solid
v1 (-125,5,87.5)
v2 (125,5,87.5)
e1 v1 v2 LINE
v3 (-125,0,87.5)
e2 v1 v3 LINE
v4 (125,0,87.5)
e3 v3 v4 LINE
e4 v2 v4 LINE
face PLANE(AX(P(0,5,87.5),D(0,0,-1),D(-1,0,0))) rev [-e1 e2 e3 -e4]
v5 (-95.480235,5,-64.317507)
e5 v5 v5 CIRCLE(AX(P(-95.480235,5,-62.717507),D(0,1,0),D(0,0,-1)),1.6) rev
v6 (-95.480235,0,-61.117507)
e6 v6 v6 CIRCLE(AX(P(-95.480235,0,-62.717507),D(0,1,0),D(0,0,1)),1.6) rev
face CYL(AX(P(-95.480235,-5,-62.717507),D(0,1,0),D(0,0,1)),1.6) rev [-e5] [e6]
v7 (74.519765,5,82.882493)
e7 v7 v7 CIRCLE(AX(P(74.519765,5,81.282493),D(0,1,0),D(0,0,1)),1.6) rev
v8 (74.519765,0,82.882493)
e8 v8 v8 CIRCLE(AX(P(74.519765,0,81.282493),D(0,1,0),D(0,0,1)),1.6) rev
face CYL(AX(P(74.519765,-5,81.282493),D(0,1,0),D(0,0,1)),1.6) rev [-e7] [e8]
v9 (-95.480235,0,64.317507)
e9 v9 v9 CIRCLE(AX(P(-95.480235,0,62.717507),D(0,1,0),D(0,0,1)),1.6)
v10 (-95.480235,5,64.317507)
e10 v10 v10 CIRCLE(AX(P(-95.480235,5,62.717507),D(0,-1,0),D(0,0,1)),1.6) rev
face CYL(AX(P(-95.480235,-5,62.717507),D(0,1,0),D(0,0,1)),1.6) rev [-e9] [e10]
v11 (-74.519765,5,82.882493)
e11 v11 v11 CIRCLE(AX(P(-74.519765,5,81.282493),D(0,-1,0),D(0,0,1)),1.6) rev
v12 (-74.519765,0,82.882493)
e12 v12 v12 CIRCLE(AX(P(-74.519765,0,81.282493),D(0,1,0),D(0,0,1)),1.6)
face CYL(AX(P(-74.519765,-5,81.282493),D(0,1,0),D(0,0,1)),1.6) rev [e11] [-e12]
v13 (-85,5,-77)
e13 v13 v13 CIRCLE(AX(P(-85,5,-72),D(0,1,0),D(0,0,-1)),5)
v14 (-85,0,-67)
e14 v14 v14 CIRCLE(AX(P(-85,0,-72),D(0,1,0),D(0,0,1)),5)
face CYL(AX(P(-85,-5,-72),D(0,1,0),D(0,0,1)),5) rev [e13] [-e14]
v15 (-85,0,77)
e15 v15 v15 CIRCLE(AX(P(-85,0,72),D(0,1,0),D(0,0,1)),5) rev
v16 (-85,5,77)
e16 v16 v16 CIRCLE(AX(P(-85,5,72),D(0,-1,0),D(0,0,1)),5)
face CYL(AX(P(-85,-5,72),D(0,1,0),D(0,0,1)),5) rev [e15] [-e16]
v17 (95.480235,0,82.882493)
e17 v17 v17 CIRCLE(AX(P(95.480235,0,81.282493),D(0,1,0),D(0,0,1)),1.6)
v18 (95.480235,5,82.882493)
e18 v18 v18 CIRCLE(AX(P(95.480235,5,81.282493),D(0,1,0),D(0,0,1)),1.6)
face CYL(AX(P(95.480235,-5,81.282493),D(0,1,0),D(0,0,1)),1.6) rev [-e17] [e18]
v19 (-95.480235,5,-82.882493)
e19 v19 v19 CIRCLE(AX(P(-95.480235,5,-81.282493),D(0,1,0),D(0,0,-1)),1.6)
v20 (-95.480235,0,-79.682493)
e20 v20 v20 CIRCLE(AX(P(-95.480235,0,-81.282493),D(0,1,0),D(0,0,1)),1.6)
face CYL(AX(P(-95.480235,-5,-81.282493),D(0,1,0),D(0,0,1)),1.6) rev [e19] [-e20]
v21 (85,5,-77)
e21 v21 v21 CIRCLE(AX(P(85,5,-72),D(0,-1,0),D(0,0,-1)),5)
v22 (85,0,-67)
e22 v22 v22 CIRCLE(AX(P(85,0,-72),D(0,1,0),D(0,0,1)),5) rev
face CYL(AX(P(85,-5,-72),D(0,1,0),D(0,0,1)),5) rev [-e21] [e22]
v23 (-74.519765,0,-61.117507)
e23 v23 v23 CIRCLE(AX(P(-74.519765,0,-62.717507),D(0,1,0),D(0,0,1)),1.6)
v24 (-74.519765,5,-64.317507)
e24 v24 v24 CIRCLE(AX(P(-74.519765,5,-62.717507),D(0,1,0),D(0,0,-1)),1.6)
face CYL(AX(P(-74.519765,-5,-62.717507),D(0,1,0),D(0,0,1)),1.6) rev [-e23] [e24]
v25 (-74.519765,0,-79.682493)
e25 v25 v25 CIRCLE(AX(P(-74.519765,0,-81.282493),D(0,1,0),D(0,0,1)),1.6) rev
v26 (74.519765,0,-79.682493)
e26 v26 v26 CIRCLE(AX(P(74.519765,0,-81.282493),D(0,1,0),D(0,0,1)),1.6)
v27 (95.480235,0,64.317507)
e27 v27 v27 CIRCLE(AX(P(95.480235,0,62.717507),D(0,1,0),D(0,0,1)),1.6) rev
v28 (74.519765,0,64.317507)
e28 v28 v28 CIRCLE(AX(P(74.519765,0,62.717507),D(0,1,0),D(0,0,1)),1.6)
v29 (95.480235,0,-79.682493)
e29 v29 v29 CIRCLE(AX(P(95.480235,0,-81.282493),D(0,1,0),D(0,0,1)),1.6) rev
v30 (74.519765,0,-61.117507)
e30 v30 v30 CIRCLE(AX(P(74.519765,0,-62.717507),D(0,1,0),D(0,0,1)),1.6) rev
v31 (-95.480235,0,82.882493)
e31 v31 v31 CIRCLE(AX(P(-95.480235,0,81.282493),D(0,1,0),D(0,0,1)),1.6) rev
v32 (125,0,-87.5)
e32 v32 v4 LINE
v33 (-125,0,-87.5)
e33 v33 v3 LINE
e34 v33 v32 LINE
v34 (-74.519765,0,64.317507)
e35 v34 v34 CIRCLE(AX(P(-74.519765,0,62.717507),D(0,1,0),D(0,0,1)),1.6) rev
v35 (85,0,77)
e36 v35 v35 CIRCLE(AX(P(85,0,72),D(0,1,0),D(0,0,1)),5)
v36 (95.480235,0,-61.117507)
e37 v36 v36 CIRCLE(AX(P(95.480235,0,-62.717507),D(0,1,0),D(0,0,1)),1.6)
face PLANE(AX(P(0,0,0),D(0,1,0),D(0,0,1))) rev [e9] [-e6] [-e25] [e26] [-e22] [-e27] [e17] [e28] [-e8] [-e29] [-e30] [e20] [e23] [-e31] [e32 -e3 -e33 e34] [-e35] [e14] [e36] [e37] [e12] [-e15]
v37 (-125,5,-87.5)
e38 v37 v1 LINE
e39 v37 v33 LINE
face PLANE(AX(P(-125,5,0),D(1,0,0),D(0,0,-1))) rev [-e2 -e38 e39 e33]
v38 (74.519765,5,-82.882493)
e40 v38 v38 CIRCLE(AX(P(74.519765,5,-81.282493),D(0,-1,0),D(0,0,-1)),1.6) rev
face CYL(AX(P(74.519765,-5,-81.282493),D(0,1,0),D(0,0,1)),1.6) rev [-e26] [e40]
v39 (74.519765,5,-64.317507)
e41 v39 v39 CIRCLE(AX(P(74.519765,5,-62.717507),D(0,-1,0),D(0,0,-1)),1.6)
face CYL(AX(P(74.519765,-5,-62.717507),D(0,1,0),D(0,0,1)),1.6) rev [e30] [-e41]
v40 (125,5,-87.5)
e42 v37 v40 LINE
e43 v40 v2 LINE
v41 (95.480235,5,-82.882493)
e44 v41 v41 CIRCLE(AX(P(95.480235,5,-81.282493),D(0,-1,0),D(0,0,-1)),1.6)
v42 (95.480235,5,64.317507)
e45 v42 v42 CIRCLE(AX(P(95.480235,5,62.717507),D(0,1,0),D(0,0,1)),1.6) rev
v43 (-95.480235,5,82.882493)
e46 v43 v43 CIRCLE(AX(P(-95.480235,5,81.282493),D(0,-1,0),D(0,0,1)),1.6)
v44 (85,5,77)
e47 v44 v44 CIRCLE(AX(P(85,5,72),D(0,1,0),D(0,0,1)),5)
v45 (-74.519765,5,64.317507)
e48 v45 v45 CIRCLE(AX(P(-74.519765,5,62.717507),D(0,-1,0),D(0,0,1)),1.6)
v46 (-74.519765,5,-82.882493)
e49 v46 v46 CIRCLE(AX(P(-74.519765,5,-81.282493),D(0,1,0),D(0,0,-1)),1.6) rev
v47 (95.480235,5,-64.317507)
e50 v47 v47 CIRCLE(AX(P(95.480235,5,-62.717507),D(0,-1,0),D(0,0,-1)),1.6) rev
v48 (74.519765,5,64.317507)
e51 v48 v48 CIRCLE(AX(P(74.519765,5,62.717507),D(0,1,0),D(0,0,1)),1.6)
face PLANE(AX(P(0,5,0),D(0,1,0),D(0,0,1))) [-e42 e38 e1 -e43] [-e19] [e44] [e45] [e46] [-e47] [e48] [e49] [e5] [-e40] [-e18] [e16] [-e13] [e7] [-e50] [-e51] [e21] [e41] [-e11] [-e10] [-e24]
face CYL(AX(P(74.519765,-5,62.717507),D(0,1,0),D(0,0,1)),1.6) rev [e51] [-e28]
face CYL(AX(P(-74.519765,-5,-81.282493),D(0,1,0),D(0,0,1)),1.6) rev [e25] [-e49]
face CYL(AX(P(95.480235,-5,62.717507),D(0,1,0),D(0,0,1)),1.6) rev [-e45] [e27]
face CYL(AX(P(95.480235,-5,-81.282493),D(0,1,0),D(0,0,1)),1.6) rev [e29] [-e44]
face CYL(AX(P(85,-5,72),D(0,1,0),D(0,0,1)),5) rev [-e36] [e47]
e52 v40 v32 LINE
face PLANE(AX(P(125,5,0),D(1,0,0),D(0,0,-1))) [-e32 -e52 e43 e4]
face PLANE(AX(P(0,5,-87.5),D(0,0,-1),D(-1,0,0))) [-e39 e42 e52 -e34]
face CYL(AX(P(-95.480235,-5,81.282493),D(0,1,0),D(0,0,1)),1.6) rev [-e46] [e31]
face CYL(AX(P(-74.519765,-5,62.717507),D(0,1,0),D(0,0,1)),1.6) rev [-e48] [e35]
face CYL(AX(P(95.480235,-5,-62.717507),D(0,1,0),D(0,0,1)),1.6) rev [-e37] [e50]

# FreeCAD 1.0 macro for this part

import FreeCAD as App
import Part
import Sketcher
Q = App.Units.Quantity

doc = App.newDocument("Part")
body = doc.addObject("PartDesign::Body", "Body")

# Sketch on XZ plane
sketch1 = body.newObject("Sketcher::SketchObject", "Sketch")
sketch1.AttachmentSupport = (doc.getObject("XZ_Plane"), [""])
sketch1.MapMode = "FlatFace"
sketch1.addGeometry([
    Part.LineSegment(App.Vector(-125, -87.5, 0), App.Vector(-125, 87.5, 0)),
    Part.LineSegment(App.Vector(-125, 87.5, 0), App.Vector(125, 87.5, 0)),
    Part.LineSegment(App.Vector(125, 87.5, 0), App.Vector(125, -87.5, 0)),
    Part.LineSegment(App.Vector(125, -87.5, 0), App.Vector(-125, -87.5, 0)),
], False)
sketch1.addConstraint([
    Sketcher.Constraint("Coincident", 0, 2, 1, 1),
    Sketcher.Constraint("Coincident", 1, 2, 2, 1),
    Sketcher.Constraint("Coincident", 2, 2, 3, 1),
    Sketcher.Constraint("Coincident", 3, 2, 0, 1),
    Sketcher.Constraint("Vertical", 0),
    Sketcher.Constraint("Horizontal", 1),
    Sketcher.Constraint("Vertical", 2),
    Sketcher.Constraint("Horizontal", 3),
    Sketcher.Constraint("Symmetric", 0, 2, 2, 2, -1, 1),
    Sketcher.Constraint("DistanceX", 1, 1, 1, 2, Q("250 mm")),
    Sketcher.Constraint("DistanceY", 0, 1, 0, 2, Q("175 mm")),
])
pad1 = body.newObject("PartDesign::Pad", "Pad")
pad1.Profile = sketch1
pad1.Length = 5
pad1.Reversed = True

# Sketch on XZ plane
sketch2 = body.newObject("Sketcher::SketchObject", "Sketch001")
sketch2.AttachmentSupport = (doc.getObject("XZ_Plane"), [""])
sketch2.MapMode = "FlatFace"
sketch2.AttachmentOffset = App.Placement(App.Vector(0, 0, -5), App.Rotation())
sketch2.addGeometry([
    Part.Circle(App.Vector(85, 72, 0), App.Vector(0, 0, 1), 5),  # 0
    Part.Circle(App.Vector(74.519765, 62.717507, 0), App.Vector(0, 0, 1), 1.6),  # 1
    Part.Circle(App.Vector(74.519765, 81.282493, 0), App.Vector(0, 0, 1), 1.6),  # 2
    Part.Circle(App.Vector(95.480235, 81.282493, 0), App.Vector(0, 0, 1), 1.6),  # 3
    Part.Circle(App.Vector(95.480235, 62.717507, 0), App.Vector(0, 0, 1), 1.6),  # 4
], False)
sketch2.addConstraint([
    Sketcher.Constraint("Equal", 1, 2),
    Sketcher.Constraint("Equal", 2, 3),
    Sketcher.Constraint("Equal", 3, 4),
    Sketcher.Constraint("Horizontal", 2, 3, 3, 3),
    Sketcher.Constraint("Horizontal", 1, 3, 4, 3),
    Sketcher.Constraint("Vertical", 1, 3, 2, 3),
    Sketcher.Constraint("Vertical", 3, 3, 4, 3),
    Sketcher.Constraint("Diameter", 0, Q("10 mm")),
    Sketcher.Constraint("Diameter", 1, Q("3.2 mm")),
    Sketcher.Constraint("DistanceX", -1, 1, 0, 3, Q("85 mm")),
    Sketcher.Constraint("DistanceY", -1, 1, 0, 3, Q("72 mm")),
    Sketcher.Constraint("DistanceX", 2, 3, 3, 3, Q("20.960469 mm")),
    Sketcher.Constraint("DistanceX", -1, 1, 1, 3, Q("74.519765 mm")),
    Sketcher.Constraint("DistanceY", -1, 1, 1, 3, Q("62.717507 mm")),
    Sketcher.Constraint("DistanceY", -1, 1, 2, 3, Q("81.282493 mm")),
])
pocket1 = body.newObject("PartDesign::Pocket", "Pocket")
pocket1.Profile = sketch2
pocket1.Length = 10
pocket1.Reversed = True
doc.recompute()

mirrored = body.newObject("PartDesign::Mirrored", "Mirrored")
mirrored.Originals = [pocket1]
mirrored.MirrorPlane = (doc.getObject("XY_Plane"), [""])
body.Tip = mirrored
doc.recompute()

mirrored2 = body.newObject("PartDesign::Mirrored", "Mirrored001")
mirrored2.Originals = [pocket1]
mirrored2.MirrorPlane = (doc.getObject("YZ_Plane"), [""])
body.Tip = mirrored2

# Sketch on XZ plane
sketch3 = body.newObject("Sketcher::SketchObject", "Sketch002")
sketch3.AttachmentSupport = (doc.getObject("XZ_Plane"), [""])
sketch3.MapMode = "FlatFace"
sketch3.AttachmentOffset = App.Placement(App.Vector(0, 0, -5), App.Rotation())
sketch3.addGeometry([
    Part.Circle(App.Vector(-85, -72, 0), App.Vector(0, 0, 1), 5),  # 0
    Part.Circle(App.Vector(-74.519765, -62.717507, 0), App.Vector(0, 0, 1), 1.6),  # 1
    Part.Circle(App.Vector(-74.519765, -81.282493, 0), App.Vector(0, 0, 1), 1.6),  # 2
    Part.Circle(App.Vector(-95.480235, -81.282493, 0), App.Vector(0, 0, 1), 1.6),  # 3
    Part.Circle(App.Vector(-95.480235, -62.717507, 0), App.Vector(0, 0, 1), 1.6),  # 4
], False)
sketch3.addConstraint([
    Sketcher.Constraint("Equal", 1, 2),
    Sketcher.Constraint("Equal", 2, 3),
    Sketcher.Constraint("Equal", 3, 4),
    Sketcher.Constraint("Horizontal", 2, 3, 3, 3),
    Sketcher.Constraint("Horizontal", 1, 3, 4, 3),
    Sketcher.Constraint("Vertical", 1, 3, 2, 3),
    Sketcher.Constraint("Vertical", 3, 3, 4, 3),
    Sketcher.Constraint("Diameter", 0, Q("10 mm")),
    Sketcher.Constraint("Diameter", 1, Q("3.2 mm")),
    Sketcher.Constraint("DistanceX", 0, 3, -1, 1, Q("85 mm")),
    Sketcher.Constraint("DistanceY", 0, 3, -1, 1, Q("72 mm")),
    Sketcher.Constraint("DistanceX", 3, 3, 2, 3, Q("20.960469 mm")),
    Sketcher.Constraint("DistanceX", 1, 3, -1, 1, Q("74.519765 mm")),
    Sketcher.Constraint("DistanceY", 1, 3, -1, 1, Q("62.717507 mm")),
    Sketcher.Constraint("DistanceY", 2, 3, -1, 1, Q("81.282493 mm")),
])
pocket2 = body.newObject("PartDesign::Pocket", "Pocket001")
pocket2.Profile = sketch3
pocket2.Length = 10
pocket2.Reversed = True

doc.recompute()
